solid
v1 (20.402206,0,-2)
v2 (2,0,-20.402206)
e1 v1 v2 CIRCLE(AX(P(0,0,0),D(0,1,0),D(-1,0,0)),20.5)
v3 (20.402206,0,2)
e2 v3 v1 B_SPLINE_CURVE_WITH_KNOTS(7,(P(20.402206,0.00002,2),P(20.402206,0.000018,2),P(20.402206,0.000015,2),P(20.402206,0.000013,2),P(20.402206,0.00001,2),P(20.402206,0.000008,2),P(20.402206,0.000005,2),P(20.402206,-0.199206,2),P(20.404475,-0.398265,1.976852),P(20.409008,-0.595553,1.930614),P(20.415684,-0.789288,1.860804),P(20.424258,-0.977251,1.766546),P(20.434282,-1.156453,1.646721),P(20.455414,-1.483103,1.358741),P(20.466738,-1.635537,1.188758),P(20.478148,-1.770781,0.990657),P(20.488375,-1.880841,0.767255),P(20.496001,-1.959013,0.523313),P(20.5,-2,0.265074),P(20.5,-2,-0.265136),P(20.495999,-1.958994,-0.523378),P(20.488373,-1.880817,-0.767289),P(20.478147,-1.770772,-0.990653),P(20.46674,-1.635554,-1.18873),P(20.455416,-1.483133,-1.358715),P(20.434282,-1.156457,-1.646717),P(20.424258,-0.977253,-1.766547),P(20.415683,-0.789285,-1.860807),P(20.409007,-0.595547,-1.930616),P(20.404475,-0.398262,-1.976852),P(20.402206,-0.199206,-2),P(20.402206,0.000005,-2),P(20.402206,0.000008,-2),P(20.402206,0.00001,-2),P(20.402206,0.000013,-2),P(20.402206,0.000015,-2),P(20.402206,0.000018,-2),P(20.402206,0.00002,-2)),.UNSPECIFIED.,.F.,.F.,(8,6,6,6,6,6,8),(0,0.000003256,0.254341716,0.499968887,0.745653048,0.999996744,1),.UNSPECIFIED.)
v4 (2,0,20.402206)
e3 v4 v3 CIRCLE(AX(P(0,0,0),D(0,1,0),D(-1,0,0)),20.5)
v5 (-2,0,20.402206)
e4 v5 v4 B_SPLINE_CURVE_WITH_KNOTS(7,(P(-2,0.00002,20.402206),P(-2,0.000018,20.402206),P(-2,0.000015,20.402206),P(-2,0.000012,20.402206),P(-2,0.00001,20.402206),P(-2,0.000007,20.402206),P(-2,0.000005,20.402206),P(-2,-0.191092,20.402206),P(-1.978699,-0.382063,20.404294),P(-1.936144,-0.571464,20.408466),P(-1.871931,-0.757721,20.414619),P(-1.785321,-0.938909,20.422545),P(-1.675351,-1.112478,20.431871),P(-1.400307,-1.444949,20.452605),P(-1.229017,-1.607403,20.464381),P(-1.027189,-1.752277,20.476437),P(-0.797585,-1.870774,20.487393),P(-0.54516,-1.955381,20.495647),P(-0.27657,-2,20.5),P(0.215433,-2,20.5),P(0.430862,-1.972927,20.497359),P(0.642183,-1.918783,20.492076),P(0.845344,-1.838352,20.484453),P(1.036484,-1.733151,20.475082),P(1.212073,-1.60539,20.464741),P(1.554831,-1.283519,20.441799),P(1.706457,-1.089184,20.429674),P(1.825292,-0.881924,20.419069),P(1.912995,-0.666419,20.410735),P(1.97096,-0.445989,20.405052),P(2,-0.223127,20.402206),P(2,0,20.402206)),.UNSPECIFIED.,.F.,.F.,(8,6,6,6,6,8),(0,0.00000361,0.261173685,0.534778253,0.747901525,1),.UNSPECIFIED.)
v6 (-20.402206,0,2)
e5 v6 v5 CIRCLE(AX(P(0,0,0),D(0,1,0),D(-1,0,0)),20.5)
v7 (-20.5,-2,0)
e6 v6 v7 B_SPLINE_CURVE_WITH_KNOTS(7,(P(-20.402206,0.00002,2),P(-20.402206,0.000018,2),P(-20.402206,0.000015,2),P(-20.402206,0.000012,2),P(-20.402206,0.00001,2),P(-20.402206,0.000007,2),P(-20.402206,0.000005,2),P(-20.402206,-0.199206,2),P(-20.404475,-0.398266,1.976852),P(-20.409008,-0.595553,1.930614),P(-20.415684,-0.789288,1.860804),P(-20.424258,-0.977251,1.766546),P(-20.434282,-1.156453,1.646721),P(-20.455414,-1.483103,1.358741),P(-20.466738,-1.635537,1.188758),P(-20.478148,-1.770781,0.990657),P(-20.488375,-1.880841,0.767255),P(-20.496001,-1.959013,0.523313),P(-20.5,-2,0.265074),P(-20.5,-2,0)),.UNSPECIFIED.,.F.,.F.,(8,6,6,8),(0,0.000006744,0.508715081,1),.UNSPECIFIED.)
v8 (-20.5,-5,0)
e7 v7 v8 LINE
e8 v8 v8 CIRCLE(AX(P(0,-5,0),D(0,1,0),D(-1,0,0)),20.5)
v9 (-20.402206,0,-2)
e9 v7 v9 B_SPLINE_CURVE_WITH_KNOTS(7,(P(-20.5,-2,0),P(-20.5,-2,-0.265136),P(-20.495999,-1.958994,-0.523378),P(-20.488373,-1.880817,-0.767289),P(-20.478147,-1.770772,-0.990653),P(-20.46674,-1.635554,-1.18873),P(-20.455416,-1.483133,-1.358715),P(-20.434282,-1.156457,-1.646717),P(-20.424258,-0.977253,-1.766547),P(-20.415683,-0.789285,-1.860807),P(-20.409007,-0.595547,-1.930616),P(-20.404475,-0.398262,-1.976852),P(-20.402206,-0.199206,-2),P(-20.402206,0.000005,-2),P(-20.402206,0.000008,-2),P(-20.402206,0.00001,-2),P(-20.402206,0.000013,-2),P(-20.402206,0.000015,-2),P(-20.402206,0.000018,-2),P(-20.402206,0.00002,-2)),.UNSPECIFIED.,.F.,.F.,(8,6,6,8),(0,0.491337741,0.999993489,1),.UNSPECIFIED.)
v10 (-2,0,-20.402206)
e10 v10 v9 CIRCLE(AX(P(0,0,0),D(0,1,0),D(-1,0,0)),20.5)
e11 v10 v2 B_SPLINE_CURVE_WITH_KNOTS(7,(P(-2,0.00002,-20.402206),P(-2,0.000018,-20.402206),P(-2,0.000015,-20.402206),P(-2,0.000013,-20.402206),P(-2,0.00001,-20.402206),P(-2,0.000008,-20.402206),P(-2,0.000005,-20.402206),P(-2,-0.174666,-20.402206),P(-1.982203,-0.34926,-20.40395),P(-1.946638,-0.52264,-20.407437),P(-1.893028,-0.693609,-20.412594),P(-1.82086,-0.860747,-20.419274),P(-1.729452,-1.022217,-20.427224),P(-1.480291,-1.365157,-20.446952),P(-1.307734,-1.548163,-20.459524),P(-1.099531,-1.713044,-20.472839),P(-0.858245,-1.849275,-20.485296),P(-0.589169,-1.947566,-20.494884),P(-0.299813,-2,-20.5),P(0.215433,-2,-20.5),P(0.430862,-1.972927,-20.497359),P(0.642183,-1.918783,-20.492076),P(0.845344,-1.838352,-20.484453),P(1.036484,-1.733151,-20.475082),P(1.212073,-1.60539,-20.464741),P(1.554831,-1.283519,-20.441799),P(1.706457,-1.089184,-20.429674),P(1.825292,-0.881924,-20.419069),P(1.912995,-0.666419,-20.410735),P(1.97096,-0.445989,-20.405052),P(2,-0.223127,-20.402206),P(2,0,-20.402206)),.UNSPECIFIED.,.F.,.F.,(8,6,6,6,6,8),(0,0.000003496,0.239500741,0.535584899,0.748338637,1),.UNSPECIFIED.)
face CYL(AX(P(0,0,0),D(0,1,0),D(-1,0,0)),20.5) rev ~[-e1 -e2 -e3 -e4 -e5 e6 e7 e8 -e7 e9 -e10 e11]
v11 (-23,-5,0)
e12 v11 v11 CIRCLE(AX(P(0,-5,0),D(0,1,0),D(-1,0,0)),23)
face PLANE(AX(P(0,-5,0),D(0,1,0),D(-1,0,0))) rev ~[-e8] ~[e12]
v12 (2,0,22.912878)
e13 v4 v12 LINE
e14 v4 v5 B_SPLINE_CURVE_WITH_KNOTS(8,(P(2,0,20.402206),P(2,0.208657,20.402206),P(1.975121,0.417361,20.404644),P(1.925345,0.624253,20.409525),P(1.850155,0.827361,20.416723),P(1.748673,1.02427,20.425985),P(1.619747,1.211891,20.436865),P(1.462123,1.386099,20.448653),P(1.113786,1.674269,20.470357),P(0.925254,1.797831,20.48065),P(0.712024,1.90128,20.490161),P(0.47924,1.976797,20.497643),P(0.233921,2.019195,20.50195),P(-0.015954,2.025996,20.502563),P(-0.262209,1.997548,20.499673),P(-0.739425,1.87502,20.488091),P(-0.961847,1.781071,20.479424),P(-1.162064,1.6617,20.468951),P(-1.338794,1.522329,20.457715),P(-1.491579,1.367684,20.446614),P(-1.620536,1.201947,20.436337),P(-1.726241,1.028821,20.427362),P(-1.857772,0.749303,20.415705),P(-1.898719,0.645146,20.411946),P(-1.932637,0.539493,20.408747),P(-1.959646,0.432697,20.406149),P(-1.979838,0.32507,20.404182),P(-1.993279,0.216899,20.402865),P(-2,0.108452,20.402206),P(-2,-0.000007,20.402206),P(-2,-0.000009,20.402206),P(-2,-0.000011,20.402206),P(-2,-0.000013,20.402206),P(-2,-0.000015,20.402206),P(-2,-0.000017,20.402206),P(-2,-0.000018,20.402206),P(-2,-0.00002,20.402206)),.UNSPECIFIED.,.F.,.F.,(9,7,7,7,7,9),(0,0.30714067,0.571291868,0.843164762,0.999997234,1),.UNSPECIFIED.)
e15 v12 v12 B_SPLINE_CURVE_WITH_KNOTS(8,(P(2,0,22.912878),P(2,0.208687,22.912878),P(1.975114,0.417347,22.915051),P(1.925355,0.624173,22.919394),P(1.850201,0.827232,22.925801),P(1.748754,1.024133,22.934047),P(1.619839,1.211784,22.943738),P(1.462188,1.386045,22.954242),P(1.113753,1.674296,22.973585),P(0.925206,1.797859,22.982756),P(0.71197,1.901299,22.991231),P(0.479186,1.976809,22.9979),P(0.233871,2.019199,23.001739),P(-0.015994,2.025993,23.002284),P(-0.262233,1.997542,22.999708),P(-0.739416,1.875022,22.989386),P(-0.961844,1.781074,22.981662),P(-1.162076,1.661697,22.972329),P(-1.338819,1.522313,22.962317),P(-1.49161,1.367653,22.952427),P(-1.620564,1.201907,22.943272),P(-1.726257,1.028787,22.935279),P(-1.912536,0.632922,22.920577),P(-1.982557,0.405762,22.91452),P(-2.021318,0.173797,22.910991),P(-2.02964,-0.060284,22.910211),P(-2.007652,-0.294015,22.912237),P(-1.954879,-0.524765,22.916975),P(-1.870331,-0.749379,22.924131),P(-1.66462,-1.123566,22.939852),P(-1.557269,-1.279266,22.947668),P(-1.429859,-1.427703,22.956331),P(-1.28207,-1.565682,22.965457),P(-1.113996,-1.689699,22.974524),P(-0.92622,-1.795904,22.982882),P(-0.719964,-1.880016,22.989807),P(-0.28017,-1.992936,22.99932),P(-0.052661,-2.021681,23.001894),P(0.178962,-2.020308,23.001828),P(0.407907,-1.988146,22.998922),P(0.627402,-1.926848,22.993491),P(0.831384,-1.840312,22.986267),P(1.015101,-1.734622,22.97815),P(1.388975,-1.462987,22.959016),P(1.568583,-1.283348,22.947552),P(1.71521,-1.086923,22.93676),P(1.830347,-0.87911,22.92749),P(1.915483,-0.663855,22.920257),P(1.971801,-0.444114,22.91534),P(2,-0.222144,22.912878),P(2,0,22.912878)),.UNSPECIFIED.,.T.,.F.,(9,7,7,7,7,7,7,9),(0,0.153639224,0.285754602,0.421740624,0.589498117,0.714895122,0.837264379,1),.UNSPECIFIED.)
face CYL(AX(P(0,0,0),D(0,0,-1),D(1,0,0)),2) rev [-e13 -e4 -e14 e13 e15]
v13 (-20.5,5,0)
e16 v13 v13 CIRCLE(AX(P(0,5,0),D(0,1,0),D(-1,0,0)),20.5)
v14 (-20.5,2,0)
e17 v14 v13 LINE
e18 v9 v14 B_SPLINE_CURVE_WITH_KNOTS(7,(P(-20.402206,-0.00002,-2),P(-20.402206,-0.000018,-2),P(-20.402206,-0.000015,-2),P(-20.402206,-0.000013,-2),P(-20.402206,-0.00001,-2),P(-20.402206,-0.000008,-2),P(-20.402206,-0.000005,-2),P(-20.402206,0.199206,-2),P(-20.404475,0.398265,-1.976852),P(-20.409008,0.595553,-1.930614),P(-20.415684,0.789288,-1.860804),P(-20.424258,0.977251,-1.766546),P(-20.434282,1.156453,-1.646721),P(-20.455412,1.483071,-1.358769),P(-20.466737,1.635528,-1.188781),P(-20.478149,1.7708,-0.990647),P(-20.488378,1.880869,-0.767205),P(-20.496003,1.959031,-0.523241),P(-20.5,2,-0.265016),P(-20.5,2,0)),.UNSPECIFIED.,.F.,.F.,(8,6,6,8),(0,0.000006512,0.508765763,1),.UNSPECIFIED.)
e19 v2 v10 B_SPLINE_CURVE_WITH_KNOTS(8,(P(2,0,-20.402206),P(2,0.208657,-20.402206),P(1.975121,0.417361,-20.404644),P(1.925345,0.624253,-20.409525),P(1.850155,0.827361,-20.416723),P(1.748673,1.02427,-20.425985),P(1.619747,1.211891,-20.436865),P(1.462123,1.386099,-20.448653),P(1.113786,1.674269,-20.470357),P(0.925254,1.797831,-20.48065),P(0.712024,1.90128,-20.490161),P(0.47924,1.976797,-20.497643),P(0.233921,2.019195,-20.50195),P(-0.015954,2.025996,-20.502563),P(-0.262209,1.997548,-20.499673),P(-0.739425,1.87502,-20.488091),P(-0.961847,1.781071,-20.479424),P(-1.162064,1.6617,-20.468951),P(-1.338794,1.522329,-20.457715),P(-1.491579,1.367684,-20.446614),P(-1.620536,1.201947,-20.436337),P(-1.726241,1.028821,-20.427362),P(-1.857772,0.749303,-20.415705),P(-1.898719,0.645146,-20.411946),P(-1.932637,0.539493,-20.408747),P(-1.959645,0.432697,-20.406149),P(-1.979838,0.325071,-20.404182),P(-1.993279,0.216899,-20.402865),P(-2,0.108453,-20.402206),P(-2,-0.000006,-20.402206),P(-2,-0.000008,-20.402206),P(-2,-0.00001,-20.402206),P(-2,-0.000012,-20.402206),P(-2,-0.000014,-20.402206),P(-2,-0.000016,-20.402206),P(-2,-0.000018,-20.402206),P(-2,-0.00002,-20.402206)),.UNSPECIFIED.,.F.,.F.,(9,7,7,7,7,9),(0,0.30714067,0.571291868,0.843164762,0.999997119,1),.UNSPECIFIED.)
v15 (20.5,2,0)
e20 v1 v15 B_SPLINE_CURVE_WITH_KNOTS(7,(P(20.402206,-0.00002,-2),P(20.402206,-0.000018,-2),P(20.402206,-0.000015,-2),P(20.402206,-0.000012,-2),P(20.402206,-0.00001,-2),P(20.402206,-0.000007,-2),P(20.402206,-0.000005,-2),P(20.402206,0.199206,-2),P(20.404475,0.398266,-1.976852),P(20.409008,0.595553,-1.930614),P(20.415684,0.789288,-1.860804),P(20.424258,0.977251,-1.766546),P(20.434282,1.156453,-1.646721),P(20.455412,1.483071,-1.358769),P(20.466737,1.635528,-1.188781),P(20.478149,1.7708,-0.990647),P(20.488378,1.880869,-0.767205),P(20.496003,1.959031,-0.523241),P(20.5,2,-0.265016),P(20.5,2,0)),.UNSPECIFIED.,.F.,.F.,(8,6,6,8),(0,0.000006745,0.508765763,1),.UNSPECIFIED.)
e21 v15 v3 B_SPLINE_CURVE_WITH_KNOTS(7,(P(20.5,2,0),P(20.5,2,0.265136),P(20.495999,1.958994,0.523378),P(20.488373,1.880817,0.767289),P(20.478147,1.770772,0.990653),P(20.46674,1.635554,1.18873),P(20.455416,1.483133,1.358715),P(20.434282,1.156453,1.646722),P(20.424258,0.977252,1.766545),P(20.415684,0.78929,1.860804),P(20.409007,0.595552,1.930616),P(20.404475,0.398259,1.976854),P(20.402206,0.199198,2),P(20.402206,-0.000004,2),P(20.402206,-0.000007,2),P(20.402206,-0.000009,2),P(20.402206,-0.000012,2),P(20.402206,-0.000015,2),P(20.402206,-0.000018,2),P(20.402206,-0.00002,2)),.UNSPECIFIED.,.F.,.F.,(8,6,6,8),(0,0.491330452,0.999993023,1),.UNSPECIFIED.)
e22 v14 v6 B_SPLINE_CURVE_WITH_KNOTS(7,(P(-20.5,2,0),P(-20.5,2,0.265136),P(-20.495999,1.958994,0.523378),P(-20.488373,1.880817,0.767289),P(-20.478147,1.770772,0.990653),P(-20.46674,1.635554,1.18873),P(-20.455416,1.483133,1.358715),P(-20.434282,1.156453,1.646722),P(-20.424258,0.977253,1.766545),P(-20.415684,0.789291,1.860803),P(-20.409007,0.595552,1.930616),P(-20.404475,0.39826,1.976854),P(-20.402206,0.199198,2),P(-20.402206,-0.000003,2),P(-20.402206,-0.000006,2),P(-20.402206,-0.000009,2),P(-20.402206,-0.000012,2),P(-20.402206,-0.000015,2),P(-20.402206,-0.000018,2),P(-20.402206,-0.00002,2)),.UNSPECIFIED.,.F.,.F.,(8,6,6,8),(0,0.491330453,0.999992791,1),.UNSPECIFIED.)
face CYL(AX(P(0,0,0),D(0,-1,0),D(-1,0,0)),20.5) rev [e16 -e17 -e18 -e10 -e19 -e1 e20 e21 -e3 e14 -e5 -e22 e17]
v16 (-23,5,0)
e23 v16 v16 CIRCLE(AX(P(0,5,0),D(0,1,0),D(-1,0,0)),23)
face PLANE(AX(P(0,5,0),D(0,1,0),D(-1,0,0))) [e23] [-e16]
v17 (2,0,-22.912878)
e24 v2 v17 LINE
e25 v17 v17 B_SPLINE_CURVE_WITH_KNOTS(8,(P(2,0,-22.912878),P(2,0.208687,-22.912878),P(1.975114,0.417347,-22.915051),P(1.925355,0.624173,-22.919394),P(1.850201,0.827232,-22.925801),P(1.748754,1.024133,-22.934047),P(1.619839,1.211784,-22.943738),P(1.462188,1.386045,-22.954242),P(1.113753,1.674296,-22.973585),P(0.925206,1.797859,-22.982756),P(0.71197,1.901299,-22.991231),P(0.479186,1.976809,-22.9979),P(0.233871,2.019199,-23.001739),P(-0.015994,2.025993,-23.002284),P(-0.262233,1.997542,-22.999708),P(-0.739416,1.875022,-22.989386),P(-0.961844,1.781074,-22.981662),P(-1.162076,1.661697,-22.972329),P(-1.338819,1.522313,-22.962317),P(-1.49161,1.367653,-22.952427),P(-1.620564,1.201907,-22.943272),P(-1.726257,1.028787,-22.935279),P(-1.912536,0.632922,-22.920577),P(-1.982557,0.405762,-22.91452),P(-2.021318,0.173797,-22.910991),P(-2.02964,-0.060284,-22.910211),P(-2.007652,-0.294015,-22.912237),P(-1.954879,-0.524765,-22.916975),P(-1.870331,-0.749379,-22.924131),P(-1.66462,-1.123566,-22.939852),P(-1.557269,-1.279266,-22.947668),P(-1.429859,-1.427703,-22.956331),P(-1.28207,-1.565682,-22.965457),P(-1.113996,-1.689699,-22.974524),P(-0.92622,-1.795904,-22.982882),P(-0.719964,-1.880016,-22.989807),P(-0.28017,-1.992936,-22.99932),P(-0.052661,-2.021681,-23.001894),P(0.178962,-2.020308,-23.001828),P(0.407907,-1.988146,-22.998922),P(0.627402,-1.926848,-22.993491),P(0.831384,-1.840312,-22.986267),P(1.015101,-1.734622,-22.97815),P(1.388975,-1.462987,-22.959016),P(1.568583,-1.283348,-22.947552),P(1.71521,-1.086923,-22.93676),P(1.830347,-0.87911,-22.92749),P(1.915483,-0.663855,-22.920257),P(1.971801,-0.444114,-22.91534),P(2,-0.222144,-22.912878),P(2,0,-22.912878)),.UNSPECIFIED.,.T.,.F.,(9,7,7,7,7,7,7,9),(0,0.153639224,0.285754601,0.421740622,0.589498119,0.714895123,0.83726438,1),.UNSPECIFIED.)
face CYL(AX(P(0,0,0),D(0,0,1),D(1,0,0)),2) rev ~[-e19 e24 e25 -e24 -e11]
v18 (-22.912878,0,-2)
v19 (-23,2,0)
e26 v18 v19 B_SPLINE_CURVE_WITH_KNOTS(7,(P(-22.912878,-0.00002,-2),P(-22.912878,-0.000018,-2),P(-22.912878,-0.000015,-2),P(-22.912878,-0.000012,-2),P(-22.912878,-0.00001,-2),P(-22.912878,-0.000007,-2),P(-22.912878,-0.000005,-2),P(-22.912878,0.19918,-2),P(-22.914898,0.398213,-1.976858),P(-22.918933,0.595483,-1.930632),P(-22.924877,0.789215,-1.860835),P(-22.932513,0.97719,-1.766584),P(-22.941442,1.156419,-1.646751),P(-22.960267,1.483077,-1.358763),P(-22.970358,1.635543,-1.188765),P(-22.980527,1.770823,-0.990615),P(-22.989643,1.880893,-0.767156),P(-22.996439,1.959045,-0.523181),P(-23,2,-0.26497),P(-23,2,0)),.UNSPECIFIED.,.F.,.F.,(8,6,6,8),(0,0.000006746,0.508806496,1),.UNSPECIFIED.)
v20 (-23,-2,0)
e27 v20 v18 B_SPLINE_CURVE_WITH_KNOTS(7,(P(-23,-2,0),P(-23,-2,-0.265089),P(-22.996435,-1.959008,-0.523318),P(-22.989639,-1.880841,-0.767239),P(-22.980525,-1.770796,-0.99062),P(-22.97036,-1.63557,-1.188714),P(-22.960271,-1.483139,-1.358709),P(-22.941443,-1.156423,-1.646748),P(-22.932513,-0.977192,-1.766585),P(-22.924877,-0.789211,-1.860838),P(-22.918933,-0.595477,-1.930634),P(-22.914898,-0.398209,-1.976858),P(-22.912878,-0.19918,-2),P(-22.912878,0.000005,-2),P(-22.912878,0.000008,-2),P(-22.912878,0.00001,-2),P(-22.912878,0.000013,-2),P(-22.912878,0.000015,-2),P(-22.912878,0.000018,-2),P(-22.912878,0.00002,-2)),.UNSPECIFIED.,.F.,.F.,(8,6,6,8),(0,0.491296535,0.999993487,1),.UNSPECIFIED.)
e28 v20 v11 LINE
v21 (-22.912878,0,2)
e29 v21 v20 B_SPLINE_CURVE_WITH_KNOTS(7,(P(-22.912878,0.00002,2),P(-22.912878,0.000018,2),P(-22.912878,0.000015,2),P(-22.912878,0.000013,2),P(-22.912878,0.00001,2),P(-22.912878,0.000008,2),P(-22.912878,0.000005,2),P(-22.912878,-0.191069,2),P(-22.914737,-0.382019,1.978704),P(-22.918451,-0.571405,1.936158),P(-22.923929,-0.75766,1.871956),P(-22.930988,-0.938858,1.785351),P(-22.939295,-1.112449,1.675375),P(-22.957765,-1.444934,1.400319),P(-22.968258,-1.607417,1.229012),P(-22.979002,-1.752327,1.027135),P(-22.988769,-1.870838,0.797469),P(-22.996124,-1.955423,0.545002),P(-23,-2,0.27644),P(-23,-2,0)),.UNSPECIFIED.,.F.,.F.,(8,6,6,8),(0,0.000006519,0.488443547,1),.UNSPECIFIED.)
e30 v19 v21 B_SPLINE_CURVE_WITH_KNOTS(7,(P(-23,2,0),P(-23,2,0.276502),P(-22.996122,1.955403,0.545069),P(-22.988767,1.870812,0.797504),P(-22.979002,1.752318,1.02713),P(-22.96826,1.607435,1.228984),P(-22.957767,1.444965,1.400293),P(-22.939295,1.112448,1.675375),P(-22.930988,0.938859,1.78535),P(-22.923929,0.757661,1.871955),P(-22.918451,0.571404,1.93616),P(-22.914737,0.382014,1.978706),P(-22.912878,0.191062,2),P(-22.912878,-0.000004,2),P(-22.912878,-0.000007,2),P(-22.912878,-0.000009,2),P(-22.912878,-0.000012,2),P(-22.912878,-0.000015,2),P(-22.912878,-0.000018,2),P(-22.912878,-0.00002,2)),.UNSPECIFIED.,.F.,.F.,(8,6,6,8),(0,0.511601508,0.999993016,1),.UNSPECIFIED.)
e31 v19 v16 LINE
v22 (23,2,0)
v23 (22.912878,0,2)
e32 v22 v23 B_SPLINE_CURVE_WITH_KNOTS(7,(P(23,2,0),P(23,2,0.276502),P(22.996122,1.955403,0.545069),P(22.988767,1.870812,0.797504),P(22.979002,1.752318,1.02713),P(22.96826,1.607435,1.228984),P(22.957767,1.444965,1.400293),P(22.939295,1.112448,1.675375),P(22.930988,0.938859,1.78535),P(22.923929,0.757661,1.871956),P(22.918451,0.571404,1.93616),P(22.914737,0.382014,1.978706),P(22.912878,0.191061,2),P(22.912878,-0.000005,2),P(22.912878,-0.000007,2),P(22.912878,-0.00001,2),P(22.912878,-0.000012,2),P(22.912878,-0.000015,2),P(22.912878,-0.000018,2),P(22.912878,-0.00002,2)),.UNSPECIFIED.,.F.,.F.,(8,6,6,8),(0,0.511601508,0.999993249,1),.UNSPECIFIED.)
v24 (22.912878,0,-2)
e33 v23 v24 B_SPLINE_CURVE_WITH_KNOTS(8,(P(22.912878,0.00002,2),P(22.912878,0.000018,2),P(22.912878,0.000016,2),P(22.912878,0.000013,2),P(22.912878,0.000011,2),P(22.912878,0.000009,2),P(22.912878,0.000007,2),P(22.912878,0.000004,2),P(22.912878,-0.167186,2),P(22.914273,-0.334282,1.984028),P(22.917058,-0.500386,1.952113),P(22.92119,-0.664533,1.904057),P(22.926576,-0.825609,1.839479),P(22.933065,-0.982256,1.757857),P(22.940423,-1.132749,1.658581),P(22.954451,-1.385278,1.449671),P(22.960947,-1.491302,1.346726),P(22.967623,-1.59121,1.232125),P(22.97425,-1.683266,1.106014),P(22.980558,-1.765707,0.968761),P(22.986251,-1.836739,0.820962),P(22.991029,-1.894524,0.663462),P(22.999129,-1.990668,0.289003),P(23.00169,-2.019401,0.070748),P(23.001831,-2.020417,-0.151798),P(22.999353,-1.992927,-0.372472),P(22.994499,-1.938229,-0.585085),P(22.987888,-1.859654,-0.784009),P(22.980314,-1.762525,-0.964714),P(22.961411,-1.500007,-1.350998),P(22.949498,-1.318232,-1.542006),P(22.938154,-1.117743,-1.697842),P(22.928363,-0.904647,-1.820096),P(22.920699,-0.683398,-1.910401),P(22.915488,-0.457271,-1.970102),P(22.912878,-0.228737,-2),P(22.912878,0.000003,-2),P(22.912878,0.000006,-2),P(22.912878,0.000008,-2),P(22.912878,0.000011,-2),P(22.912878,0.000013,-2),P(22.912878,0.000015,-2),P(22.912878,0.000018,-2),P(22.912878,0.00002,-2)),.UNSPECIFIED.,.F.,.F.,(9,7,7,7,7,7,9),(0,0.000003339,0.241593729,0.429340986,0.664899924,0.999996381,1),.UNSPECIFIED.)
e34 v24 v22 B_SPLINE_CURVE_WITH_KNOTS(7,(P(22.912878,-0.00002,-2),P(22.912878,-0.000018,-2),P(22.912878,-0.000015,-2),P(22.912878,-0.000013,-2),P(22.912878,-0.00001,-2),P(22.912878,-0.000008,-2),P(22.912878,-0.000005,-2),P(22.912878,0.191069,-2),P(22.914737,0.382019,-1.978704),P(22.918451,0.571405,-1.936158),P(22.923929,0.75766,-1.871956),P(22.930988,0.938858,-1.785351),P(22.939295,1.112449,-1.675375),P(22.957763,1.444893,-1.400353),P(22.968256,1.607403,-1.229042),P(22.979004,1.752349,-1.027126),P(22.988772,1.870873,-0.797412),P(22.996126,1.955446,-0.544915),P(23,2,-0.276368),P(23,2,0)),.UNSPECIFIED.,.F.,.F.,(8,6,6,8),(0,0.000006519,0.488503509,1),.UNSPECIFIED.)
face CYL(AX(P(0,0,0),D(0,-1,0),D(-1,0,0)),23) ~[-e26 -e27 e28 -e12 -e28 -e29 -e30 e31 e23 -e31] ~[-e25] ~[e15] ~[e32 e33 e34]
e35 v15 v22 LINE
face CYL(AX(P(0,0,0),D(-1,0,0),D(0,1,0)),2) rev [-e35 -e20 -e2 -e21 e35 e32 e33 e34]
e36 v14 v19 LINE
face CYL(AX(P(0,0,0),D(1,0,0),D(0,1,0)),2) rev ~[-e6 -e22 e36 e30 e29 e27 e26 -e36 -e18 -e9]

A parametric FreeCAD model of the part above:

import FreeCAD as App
import Part
import Sketcher

doc = App.newDocument("Part")
body = doc.addObject("PartDesign::Body", "Body")

# Sketch on XZ plane
sketch1 = doc.addObject("Sketcher::SketchObject", "Sketch")
body.addObject(sketch1)
sketch1.AttachmentSupport = (doc.XZ_Plane, [""])
sketch1.MapMode = "FlatFace"
sketch1.addGeometry(Part.Circle(App.Vector(0, 0, 0), App.Vector(0, 0, 1), 23), False)
sketch1.addGeometry(Part.Circle(App.Vector(0, 0, 0), App.Vector(0, 0, 1), 20), False)
sketch1.addConstraint(Sketcher.Constraint("Coincident", 0, 3, -1, 1))
sketch1.addConstraint(Sketcher.Constraint("Coincident", 1, 3, -1, 1))
sketch1.addConstraint(Sketcher.Constraint("Diameter", 0, 46.0))
sketch1.addConstraint(Sketcher.Constraint("Diameter", 1, 41.0))
pad1 = doc.addObject("PartDesign::Pad", "Pad")
body.addObject(pad1)
pad1.Profile = sketch1
pad1.Length = 10
pad1.Midplane = True

# Sketch on YZ plane
sketch2 = doc.addObject("Sketcher::SketchObject", "Sketch001")
body.addObject(sketch2)
sketch2.AttachmentSupport = (doc.YZ_Plane, [""])
sketch2.MapMode = "FlatFace"
sketch2.addGeometry(Part.Circle(App.Vector(0, 0, 0), App.Vector(0, 0, 1), 2), False)
sketch2.addConstraint(Sketcher.Constraint("Coincident", 0, 3, -1, 1))
sketch2.addConstraint(Sketcher.Constraint("Diameter", 0, 4.0))
pocket1 = doc.addObject("PartDesign::Pocket", "Pocket")
body.addObject(pocket1)
pocket1.Profile = sketch2
pocket1.Type = "ThroughAll"
pocket1.Midplane = True

# Sketch on XY plane
sketch3 = doc.addObject("Sketcher::SketchObject", "Sketch002")
body.addObject(sketch3)
sketch3.AttachmentSupport = (doc.XY_Plane, [""])
sketch3.MapMode = "FlatFace"
sketch3.addGeometry(Part.Circle(App.Vector(0, 0, 0), App.Vector(0, 0, 1), 2), False)
sketch3.addConstraint(Sketcher.Constraint("Coincident", 0, 3, -1, 1))
sketch3.addConstraint(Sketcher.Constraint("Diameter", 0, 4.0))
pocket2 = doc.addObject("PartDesign::Pocket", "Pocket001")
body.addObject(pocket2)
pocket2.Profile = sketch3
pocket2.Type = "ThroughAll"
pocket2.Midplane = True

doc.recompute()
